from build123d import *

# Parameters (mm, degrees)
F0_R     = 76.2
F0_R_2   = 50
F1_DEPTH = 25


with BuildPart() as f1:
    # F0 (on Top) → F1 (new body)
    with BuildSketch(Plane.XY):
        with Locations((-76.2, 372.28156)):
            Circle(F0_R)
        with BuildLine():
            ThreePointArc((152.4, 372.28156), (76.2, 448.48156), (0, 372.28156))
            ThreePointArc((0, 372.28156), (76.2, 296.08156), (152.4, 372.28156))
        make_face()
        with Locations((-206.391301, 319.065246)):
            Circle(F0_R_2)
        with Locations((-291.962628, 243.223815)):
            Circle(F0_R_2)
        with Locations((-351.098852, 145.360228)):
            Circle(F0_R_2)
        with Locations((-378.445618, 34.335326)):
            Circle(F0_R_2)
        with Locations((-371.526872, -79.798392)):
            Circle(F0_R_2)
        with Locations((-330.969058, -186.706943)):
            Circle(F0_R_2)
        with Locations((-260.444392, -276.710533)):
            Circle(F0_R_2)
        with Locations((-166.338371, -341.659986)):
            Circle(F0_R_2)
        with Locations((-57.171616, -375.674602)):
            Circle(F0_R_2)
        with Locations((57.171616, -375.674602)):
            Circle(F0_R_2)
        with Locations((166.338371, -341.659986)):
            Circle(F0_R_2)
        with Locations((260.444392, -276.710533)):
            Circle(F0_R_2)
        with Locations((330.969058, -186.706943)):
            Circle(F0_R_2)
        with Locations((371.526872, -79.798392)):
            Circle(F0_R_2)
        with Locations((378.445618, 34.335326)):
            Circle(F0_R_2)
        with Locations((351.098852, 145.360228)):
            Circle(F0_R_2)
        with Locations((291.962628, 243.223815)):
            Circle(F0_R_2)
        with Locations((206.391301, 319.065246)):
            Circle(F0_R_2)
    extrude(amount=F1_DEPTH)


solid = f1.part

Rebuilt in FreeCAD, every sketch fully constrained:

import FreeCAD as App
import Part
import Sketcher

V = App.Vector
Q = App.Units.Quantity

doc = App.newDocument("Part")
body = doc.addObject("PartDesign::Body", "Body")
body.AllowCompound = True

# Sketch on XY plane
sketch1 = body.newObject("Sketcher::SketchObject", "Sketch")
sketch1.AttachmentSupport = (doc.getObject("XY_Plane"), [""])
sketch1.MapMode = "FlatFace"
sketch1.addGeometry(Part.Circle(V(-76.2, 372.28156, 0), V(0, 0, 1), 76.2), False)
sketch1.addGeometry(Part.Circle(V(76.2, 372.28156, 0), V(0, 0, 1), 76.2), False)
sketch1.addGeometry(Part.Circle(V(-206.391301, 319.065246, 0), V(0, 0, 1), 50), False)
sketch1.addGeometry(Part.Circle(V(-291.962628, 243.223815, 0), V(0, 0, 1), 50), False)
sketch1.addGeometry(Part.Circle(V(-351.098852, 145.360228, 0), V(0, 0, 1), 50), False)
sketch1.addGeometry(Part.Circle(V(-378.445618, 34.335326, 0), V(0, 0, 1), 50), False)
sketch1.addGeometry(Part.Circle(V(-371.526872, -79.798392, 0), V(0, 0, 1), 50), False)
sketch1.addGeometry(Part.Circle(V(-330.969058, -186.706943, 0), V(0, 0, 1), 50), False)
sketch1.addGeometry(Part.Circle(V(-260.444392, -276.710533, 0), V(0, 0, 1), 50), False)
sketch1.addGeometry(Part.Circle(V(-166.338371, -341.659986, 0), V(0, 0, 1), 50), False)
sketch1.addGeometry(Part.Circle(V(-57.171616, -375.674602, 0), V(0, 0, 1), 50), False)
sketch1.addGeometry(Part.Circle(V(57.171616, -375.674602, 0), V(0, 0, 1), 50), False)
sketch1.addGeometry(Part.Circle(V(166.338371, -341.659986, 0), V(0, 0, 1), 50), False)
sketch1.addGeometry(Part.Circle(V(260.444392, -276.710533, 0), V(0, 0, 1), 50), False)
sketch1.addGeometry(Part.Circle(V(330.969058, -186.706943, 0), V(0, 0, 1), 50), False)
sketch1.addGeometry(Part.Circle(V(371.526872, -79.798392, 0), V(0, 0, 1), 50), False)
sketch1.addGeometry(Part.Circle(V(378.445618, 34.335326, 0), V(0, 0, 1), 50), False)
sketch1.addGeometry(Part.Circle(V(351.098852, 145.360228, 0), V(0, 0, 1), 50), False)
sketch1.addGeometry(Part.Circle(V(291.962628, 243.223815, 0), V(0, 0, 1), 50), False)
sketch1.addGeometry(Part.Circle(V(206.391301, 319.065246, 0), V(0, 0, 1), 50), False)
sketch1.addConstraint(Sketcher.Constraint("Equal", 0, 1))
sketch1.addConstraint(Sketcher.Constraint("Equal", 2, 3))
sketch1.addConstraint(Sketcher.Constraint("Equal", 3, 4))
sketch1.addConstraint(Sketcher.Constraint("Equal", 4, 5))
sketch1.addConstraint(Sketcher.Constraint("Equal", 5, 6))
sketch1.addConstraint(Sketcher.Constraint("Equal", 6, 7))
sketch1.addConstraint(Sketcher.Constraint("Equal", 7, 8))
sketch1.addConstraint(Sketcher.Constraint("Equal", 8, 9))
sketch1.addConstraint(Sketcher.Constraint("Equal", 9, 10))
sketch1.addConstraint(Sketcher.Constraint("Equal", 10, 11))
sketch1.addConstraint(Sketcher.Constraint("Equal", 11, 12))
sketch1.addConstraint(Sketcher.Constraint("Equal", 12, 13))
sketch1.addConstraint(Sketcher.Constraint("Equal", 13, 14))
sketch1.addConstraint(Sketcher.Constraint("Equal", 14, 15))
sketch1.addConstraint(Sketcher.Constraint("Equal", 15, 16))
sketch1.addConstraint(Sketcher.Constraint("Equal", 16, 17))
sketch1.addConstraint(Sketcher.Constraint("Equal", 17, 18))
sketch1.addConstraint(Sketcher.Constraint("Equal", 18, 19))
sketch1.addConstraint(Sketcher.Constraint("Symmetric", 0, 3, 1, 3, -2))
sketch1.addConstraint(Sketcher.Constraint("Symmetric", 10, 3, 11, 3, -2))
sketch1.addConstraint(Sketcher.Constraint("Symmetric", 9, 3, 12, 3, -2))
sketch1.addConstraint(Sketcher.Constraint("Symmetric", 8, 3, 13, 3, -2))
sketch1.addConstraint(Sketcher.Constraint("Symmetric", 7, 3, 14, 3, -2))
sketch1.addConstraint(Sketcher.Constraint("Symmetric", 6, 3, 15, 3, -2))
sketch1.addConstraint(Sketcher.Constraint("Symmetric", 5, 3, 16, 3, -2))
sketch1.addConstraint(Sketcher.Constraint("Symmetric", 4, 3, 17, 3, -2))
sketch1.addConstraint(Sketcher.Constraint("Symmetric", 3, 3, 18, 3, -2))
sketch1.addConstraint(Sketcher.Constraint("Symmetric", 2, 3, 19, 3, -2))
sketch1.addConstraint(Sketcher.Constraint("Diameter", 2, Q("100 mm")))
sketch1.addConstraint(Sketcher.Constraint("Diameter", 0, Q("152.4 mm")))
sketch1.addConstraint(Sketcher.Constraint("DistanceX", 0, 3, -1, 1, Q("76.2 mm")))
sketch1.addConstraint(Sketcher.Constraint("DistanceX", 5, 3, 10, 3, Q("321.274002 mm")))
sketch1.addConstraint(Sketcher.Constraint("DistanceX", 2, 3, -1, 1, Q("206.391301 mm")))
sketch1.addConstraint(Sketcher.Constraint("DistanceY", 10, 3, -1, 1, Q("375.674602 mm")))
sketch1.addConstraint(Sketcher.Constraint("DistanceY", 5, 3, 4, 3, Q("111.024902 mm")))
sketch1.addConstraint(Sketcher.Constraint("DistanceX", 6, 3, 9, 3, Q("205.188501 mm")))
sketch1.addConstraint(Sketcher.Constraint("DistanceY", -1, 1, 0, 3, Q("372.28156 mm")))
sketch1.addConstraint(Sketcher.Constraint("DistanceX", 3, 3, -1, 1, Q("291.962628 mm")))
sketch1.addConstraint(Sketcher.Constraint("DistanceX", 4, 3, -1, 1, Q("351.098852 mm")))
sketch1.addConstraint(Sketcher.Constraint("DistanceY", -1, 1, 4, 3, Q("145.360228 mm")))
sketch1.addConstraint(Sketcher.Constraint("DistanceX", 5, 3, -1, 1, Q("378.445618 mm")))
sketch1.addConstraint(Sketcher.Constraint("DistanceX", 7, 3, -1, 1, Q("330.969058 mm")))
sketch1.addConstraint(Sketcher.Constraint("DistanceX", 8, 3, -1, 1, Q("260.444392 mm")))
sketch1.addConstraint(Sketcher.Constraint("DistanceX", 9, 3, -1, 1, Q("166.338371 mm")))
sketch1.addConstraint(Sketcher.Constraint("DistanceY", 3, 3, 2, 3, Q("75.841431 mm")))
sketch1.addConstraint(Sketcher.Constraint("DistanceY", 4, 3, 2, 3, Q("173.705018 mm")))
sketch1.addConstraint(Sketcher.Constraint("DistanceY", 6, 3, 5, 3, Q("114.133718 mm")))
sketch1.addConstraint(Sketcher.Constraint("DistanceY", 7, 3, 6, 3, Q("106.908551 mm")))
sketch1.addConstraint(Sketcher.Constraint("DistanceY", 8, 3, 7, 3, Q("90.00359 mm")))
sketch1.addConstraint(Sketcher.Constraint("DistanceY", 9, 3, 5, 3, Q("375.995312 mm")))
pad1 = body.newObject("PartDesign::Pad", "Pad")
pad1.Profile = sketch1
pad1.Length = 25

doc.recompute()
